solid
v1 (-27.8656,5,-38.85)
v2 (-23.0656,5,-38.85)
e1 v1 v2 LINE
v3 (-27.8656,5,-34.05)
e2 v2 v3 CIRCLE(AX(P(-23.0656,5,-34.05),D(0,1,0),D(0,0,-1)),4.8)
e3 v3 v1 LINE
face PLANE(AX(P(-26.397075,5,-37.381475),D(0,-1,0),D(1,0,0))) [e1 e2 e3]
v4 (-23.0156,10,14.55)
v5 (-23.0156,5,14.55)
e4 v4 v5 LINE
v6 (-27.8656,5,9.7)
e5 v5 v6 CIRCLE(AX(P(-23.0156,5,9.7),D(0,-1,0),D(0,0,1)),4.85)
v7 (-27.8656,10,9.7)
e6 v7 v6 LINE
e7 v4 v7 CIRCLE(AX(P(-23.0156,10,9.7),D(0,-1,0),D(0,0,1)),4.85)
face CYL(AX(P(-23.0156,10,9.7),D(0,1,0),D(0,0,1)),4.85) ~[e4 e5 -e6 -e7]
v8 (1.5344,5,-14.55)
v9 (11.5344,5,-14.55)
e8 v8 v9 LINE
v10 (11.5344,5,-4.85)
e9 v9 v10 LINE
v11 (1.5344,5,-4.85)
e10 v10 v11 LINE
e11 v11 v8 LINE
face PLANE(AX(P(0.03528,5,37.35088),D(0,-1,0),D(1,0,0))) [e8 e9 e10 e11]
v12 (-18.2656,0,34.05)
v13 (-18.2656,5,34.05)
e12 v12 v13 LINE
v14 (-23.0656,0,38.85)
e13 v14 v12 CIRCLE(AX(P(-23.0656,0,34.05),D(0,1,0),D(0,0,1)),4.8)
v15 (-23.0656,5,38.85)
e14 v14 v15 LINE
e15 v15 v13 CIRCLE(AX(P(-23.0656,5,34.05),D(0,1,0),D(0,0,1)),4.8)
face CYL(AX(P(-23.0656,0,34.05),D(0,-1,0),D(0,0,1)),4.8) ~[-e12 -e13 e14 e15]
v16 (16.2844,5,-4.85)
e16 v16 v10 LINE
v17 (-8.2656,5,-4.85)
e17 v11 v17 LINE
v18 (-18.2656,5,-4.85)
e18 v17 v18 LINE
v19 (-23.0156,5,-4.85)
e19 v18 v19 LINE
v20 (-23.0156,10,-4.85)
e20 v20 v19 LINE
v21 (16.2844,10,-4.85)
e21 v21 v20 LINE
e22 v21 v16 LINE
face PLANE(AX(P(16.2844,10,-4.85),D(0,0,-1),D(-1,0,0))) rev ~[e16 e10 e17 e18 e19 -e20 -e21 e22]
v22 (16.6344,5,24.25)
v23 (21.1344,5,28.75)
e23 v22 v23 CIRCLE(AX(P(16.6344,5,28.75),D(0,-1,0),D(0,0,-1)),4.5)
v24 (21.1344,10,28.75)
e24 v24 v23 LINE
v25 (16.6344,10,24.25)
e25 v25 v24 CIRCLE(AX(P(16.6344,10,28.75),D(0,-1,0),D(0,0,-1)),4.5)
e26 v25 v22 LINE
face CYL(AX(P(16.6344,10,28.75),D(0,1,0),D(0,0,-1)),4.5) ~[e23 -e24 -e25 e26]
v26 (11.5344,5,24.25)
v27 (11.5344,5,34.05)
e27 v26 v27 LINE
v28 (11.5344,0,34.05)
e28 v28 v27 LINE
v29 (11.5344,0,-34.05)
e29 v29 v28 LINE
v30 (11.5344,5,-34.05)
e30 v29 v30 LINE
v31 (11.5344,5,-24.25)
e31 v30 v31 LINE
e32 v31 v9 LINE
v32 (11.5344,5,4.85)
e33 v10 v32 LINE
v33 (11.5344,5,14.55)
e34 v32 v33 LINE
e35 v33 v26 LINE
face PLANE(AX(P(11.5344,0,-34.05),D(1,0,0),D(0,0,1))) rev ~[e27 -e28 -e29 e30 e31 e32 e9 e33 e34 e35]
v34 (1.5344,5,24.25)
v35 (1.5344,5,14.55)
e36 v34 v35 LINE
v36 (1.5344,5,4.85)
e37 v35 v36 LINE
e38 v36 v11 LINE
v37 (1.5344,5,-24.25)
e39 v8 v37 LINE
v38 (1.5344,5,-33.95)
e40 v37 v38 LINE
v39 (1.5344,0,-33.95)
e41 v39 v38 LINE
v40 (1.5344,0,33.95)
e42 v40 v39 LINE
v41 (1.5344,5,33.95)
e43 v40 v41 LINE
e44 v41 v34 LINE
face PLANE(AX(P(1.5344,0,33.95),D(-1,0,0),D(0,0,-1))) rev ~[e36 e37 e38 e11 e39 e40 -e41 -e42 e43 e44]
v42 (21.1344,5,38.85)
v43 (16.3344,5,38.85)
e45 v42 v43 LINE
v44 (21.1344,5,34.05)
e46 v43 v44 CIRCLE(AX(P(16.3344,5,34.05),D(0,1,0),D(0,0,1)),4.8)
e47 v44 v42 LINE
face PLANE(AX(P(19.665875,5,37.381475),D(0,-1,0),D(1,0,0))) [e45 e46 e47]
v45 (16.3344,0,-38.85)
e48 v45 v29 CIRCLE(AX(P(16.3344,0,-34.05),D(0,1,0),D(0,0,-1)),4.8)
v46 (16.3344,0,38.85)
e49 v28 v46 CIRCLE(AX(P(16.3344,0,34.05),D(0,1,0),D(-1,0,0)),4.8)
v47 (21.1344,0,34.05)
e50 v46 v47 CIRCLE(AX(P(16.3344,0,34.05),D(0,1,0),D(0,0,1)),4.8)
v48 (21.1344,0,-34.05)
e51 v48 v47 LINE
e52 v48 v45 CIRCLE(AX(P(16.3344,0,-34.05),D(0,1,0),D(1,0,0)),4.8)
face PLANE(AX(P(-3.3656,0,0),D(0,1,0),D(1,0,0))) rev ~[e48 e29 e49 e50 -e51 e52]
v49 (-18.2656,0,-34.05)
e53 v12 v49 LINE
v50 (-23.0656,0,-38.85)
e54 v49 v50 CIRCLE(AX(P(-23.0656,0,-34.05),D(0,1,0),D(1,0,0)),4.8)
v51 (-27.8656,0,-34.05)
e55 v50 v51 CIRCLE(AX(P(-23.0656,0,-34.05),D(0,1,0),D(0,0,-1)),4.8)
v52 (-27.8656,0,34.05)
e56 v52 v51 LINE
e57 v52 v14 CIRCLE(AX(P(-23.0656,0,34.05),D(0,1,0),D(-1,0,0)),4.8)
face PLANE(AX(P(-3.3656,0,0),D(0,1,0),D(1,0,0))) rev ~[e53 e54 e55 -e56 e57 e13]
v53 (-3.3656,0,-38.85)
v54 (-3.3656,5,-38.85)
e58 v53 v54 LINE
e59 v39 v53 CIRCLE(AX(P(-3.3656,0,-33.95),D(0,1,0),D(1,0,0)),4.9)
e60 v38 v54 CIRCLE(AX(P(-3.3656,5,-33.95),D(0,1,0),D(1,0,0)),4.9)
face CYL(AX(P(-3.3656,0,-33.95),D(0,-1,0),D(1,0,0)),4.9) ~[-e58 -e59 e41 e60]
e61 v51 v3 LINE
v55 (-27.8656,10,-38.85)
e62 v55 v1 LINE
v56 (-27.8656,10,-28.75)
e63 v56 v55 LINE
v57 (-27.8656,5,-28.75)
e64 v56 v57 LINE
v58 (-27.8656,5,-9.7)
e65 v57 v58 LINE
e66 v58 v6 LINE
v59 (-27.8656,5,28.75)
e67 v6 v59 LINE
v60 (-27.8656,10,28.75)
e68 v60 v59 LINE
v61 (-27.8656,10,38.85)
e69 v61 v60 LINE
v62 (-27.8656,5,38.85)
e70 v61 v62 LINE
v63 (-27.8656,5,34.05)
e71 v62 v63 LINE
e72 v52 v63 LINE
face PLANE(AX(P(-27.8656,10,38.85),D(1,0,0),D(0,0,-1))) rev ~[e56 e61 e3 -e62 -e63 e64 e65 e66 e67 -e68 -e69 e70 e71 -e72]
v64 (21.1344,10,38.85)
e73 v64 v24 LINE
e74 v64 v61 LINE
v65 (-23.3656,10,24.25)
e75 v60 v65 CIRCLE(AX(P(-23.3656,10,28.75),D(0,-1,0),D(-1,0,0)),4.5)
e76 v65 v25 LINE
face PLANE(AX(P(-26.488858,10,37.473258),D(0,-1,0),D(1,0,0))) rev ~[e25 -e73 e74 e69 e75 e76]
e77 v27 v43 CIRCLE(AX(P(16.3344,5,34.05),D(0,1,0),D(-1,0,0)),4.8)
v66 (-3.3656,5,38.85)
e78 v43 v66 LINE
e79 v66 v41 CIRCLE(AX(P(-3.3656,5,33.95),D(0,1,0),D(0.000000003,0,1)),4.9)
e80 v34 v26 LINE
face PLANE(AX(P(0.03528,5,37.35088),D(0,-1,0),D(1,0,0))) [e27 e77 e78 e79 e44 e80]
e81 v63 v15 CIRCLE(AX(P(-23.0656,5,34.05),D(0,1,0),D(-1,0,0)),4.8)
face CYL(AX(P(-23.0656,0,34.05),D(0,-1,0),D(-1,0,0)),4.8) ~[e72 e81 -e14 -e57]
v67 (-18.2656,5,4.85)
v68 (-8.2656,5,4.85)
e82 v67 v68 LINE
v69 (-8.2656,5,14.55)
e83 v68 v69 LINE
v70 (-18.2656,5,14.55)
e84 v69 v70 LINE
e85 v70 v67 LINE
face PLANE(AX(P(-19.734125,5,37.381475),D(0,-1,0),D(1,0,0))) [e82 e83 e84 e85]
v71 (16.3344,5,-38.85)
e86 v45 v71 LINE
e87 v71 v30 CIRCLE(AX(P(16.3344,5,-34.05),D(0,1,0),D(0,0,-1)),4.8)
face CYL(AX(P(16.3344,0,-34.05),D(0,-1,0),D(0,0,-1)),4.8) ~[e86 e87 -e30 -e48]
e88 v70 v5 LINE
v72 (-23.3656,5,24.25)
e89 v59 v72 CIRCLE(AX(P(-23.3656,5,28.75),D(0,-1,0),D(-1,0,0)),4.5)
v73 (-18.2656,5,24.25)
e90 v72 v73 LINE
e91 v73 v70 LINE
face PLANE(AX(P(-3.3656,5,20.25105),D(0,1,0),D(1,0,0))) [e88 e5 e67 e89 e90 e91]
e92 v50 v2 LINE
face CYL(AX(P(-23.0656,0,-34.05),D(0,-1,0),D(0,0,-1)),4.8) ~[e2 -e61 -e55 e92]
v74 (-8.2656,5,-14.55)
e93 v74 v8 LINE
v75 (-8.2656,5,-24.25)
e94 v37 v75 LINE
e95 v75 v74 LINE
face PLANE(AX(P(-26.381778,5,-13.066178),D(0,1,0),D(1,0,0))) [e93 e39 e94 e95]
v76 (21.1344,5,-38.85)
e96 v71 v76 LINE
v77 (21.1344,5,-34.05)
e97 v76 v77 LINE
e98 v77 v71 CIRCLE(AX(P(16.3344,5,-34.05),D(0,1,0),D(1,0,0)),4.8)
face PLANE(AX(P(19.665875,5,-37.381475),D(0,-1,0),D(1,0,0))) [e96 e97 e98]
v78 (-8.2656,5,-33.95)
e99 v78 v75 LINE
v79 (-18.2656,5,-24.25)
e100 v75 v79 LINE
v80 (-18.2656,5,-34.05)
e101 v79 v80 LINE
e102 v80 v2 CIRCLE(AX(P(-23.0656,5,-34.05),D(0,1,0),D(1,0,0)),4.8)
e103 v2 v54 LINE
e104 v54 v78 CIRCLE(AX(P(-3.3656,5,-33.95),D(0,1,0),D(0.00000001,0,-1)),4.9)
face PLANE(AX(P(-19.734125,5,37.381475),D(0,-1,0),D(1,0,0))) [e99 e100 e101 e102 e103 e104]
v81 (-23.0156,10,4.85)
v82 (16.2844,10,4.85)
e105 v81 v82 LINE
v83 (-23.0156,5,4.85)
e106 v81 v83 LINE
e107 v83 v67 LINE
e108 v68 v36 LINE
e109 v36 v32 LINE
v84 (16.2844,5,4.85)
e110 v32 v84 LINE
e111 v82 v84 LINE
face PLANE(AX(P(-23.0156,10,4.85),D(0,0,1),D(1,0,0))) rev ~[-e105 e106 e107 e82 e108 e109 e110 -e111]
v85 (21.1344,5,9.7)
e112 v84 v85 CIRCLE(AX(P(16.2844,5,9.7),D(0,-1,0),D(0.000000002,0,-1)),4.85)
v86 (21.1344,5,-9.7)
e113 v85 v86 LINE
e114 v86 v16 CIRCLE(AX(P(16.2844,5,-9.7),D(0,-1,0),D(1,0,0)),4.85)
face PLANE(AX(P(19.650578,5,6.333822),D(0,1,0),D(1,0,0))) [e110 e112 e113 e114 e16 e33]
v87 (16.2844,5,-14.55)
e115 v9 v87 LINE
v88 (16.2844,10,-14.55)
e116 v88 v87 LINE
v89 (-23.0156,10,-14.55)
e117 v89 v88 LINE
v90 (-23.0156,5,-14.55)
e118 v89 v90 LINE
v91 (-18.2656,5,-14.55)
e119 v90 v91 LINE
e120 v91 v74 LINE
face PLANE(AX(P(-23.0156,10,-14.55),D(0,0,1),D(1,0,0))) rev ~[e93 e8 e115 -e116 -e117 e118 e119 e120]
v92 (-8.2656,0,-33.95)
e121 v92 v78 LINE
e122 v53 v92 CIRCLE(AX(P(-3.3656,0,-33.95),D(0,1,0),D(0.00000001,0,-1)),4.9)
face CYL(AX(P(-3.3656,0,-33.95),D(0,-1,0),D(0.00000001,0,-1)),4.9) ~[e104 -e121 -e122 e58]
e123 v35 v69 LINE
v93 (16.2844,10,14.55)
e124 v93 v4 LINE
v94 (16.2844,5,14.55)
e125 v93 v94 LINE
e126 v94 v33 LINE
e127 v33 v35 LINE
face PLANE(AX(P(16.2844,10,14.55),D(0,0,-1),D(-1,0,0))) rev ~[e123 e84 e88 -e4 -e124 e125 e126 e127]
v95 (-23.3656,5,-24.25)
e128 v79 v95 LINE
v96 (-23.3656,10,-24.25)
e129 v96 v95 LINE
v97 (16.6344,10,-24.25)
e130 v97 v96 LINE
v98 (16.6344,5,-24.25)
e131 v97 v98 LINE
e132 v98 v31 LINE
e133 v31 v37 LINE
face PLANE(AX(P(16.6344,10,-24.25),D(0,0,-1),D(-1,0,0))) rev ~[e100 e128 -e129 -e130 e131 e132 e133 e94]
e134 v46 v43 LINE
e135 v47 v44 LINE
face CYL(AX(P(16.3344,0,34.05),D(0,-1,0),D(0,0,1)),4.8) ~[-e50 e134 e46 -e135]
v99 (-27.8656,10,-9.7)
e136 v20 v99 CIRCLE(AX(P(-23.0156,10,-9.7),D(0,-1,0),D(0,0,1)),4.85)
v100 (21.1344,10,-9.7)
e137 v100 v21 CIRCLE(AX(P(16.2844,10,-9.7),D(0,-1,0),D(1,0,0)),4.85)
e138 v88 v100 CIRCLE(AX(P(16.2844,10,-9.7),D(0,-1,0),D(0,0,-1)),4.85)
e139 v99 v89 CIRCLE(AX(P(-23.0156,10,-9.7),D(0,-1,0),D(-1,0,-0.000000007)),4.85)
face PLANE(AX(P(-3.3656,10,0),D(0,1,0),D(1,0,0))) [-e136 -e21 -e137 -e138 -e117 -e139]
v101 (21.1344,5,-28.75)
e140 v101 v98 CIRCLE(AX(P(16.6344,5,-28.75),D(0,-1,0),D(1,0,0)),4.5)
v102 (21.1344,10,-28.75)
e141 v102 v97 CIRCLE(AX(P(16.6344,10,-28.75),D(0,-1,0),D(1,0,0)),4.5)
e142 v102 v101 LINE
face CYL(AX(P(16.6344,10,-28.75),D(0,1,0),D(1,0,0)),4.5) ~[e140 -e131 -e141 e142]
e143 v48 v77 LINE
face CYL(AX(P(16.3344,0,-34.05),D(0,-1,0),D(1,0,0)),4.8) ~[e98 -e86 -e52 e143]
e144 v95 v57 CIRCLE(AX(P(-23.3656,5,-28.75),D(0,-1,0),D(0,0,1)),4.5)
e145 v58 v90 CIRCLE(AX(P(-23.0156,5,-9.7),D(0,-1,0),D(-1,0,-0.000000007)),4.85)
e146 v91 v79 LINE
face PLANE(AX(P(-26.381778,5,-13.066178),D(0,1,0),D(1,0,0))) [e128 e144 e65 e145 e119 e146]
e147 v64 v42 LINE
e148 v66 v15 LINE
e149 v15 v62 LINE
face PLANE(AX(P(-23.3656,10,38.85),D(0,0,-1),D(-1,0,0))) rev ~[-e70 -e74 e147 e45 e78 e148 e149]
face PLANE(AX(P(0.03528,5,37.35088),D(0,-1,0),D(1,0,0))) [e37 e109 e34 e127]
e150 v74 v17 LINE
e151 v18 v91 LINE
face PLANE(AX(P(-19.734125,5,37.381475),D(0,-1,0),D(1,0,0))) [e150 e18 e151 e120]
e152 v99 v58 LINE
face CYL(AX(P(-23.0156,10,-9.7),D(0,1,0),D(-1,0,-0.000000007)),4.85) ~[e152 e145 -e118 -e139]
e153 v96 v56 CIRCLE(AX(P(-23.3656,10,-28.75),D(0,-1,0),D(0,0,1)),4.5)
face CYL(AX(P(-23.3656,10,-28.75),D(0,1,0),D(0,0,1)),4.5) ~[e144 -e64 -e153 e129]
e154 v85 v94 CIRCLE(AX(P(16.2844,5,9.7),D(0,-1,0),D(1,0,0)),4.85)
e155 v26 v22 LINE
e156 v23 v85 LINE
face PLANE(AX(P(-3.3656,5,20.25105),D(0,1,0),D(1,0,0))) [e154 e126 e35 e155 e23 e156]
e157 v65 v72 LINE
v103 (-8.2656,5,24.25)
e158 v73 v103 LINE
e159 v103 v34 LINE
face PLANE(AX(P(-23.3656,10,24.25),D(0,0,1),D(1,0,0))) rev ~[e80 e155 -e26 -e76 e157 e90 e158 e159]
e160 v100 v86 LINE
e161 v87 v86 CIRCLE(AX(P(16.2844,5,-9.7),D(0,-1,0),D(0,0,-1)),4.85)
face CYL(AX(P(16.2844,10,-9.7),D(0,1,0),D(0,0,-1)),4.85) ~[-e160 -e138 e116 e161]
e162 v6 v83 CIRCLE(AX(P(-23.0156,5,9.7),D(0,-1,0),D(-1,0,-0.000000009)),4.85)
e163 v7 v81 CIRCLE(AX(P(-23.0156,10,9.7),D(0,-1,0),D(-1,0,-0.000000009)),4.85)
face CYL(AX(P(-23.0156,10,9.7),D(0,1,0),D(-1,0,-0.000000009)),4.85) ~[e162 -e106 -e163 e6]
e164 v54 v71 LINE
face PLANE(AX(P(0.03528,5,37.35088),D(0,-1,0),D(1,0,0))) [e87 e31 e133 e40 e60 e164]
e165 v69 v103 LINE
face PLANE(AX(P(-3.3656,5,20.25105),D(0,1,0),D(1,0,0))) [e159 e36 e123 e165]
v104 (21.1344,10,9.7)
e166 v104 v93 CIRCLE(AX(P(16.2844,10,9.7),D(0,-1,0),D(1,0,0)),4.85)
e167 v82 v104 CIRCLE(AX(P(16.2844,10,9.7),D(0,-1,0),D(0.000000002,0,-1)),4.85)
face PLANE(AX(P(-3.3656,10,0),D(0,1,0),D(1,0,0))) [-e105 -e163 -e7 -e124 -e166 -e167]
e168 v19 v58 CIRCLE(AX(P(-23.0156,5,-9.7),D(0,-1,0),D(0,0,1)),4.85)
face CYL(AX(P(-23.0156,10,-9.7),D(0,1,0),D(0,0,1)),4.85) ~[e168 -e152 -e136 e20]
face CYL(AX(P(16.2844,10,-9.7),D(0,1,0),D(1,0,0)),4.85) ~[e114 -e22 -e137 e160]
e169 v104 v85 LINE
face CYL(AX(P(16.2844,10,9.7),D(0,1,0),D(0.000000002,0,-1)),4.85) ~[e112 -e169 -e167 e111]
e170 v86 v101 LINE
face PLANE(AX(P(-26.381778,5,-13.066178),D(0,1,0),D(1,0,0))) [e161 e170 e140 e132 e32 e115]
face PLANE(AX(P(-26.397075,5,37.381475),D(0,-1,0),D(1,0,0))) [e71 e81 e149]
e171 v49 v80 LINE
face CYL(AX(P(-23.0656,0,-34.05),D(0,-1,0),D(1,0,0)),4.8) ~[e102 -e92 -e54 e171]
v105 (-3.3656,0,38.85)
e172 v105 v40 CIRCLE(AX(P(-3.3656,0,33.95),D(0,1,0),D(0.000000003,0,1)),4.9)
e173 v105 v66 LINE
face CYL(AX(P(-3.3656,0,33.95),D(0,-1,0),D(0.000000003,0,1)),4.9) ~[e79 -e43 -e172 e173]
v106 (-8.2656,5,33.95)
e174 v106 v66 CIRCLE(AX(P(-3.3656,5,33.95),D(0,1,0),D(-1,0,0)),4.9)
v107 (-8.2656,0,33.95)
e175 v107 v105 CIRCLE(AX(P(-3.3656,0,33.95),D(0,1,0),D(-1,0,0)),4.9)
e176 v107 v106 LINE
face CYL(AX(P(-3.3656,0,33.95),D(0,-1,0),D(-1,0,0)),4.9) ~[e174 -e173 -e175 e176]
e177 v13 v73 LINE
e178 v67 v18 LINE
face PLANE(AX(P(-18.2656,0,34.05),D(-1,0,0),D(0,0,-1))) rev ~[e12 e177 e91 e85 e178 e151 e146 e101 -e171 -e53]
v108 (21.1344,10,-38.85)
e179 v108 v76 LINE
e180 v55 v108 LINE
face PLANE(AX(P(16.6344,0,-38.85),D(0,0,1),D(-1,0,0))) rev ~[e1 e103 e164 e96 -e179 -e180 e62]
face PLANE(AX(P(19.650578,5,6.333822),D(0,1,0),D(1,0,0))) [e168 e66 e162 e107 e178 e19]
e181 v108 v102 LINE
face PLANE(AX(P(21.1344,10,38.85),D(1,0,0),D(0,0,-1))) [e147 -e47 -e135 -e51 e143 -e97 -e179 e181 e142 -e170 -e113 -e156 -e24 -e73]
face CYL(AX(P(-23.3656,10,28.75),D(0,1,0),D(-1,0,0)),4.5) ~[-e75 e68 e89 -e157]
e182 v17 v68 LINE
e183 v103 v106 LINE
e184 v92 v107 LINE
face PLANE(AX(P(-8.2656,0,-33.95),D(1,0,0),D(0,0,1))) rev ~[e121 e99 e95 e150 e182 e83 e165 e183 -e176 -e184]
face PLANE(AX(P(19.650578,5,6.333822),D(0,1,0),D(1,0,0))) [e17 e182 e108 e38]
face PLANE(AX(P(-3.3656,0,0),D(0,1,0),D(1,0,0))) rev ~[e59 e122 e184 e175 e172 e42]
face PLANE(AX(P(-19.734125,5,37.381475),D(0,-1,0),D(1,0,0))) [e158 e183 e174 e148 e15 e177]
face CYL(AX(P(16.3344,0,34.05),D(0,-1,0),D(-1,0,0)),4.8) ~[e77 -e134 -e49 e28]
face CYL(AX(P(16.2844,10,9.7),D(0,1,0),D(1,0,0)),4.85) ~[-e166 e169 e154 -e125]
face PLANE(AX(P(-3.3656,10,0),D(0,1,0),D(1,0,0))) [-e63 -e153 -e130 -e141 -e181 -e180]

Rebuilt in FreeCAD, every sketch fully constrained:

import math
import FreeCAD as App
import Part
import Sketcher

V = App.Vector
Q = App.Units.Quantity

doc = App.newDocument("Part")
body = doc.addObject("PartDesign::Body", "Body")

# Sketch on XZ plane
sketch1 = body.newObject("Sketcher::SketchObject", "Sketch")
sketch1.AttachmentSupport = (doc.getObject("XZ_Plane"), [""])
sketch1.MapMode = "FlatFace"
sketch1.addGeometry(Part.LineSegment(V(-23.4, 38.9, 0), V(16.6, 38.9, 0)), False)
sketch1.addGeometry(Part.ArcOfCircle(Part.Circle(V(16.6, 34.3, 0), V(0, 0, 1), 4.5), math.radians(0), math.radians(90)), False)
sketch1.addGeometry(Part.LineSegment(V(21.1, 34.4, 0), V(21.1, -34.4, 0)), False)
sketch1.addGeometry(Part.ArcOfCircle(Part.Circle(V(16.6, -34.3, 0), V(0, 0, 1), 4.5), math.radians(-90), math.radians(0)), False)
sketch1.addGeometry(Part.LineSegment(V(16.6, -38.9, 0), V(-23.4, -38.9, 0)), False)
sketch1.addGeometry(Part.ArcOfCircle(Part.Circle(V(-23.4, -34.3, 0), V(0, 0, 1), 4.5), math.radians(-180), math.radians(-90)), False)
sketch1.addGeometry(Part.LineSegment(V(-27.9, -34.4, 0), V(-27.9, 34.4, 0)), False)
sketch1.addGeometry(Part.ArcOfCircle(Part.Circle(V(-23.4, 34.3, 0), V(0, 0, 1), 4.5), math.radians(90), math.radians(180)), False)
sketch1.addConstraint(Sketcher.Constraint("Tangent", 0, 2, 1, 2))
sketch1.addConstraint(Sketcher.Constraint("Tangent", 1, 1, 2, 1))
sketch1.addConstraint(Sketcher.Constraint("Tangent", 2, 2, 3, 2))
sketch1.addConstraint(Sketcher.Constraint("Tangent", 3, 1, 4, 1))
sketch1.addConstraint(Sketcher.Constraint("Tangent", 4, 2, 5, 2))
sketch1.addConstraint(Sketcher.Constraint("Tangent", 5, 1, 6, 1))
sketch1.addConstraint(Sketcher.Constraint("Tangent", 6, 2, 7, 2))
sketch1.addConstraint(Sketcher.Constraint("Tangent", 7, 1, 0, 1))
sketch1.addConstraint(Sketcher.Constraint("Horizontal", 0))
sketch1.addConstraint(Sketcher.Constraint("Vertical", 2))
sketch1.addConstraint(Sketcher.Constraint("Horizontal", 4))
sketch1.addConstraint(Sketcher.Constraint("Vertical", 6))
sketch1.addConstraint(Sketcher.Constraint("Equal", 1, 3))
sketch1.addConstraint(Sketcher.Constraint("Equal", 3, 5))
sketch1.addConstraint(Sketcher.Constraint("Equal", 5, 7))
sketch1.addConstraint(Sketcher.Constraint("Radius", 1, Q("4.5 mm")))
sketch1.addConstraint(Sketcher.Constraint("DistanceX", 0, 1, 0, 2, Q("40 mm")))
sketch1.addConstraint(Sketcher.Constraint("DistanceY", 2, 2, 2, 1, Q("68.7 mm")))
sketch1.addConstraint(Sketcher.Constraint("DistanceY", -1, 1, 1, 3, Q("34.35 mm")))
sketch1.addConstraint(Sketcher.Constraint("DistanceX", -1, 1, 1, 3, Q("16.6344 mm")))
pad1 = body.newObject("PartDesign::Pad", "Pad")
pad1.Profile = sketch1
pad1.Length = 10
pad1.Reversed = True

# Sketch on XZ plane
sketch2 = body.newObject("Sketcher::SketchObject", "Sketch001")
sketch2.AttachmentSupport = (doc.getObject("XZ_Plane"), [""])
sketch2.MapMode = "FlatFace"
sketch2.AttachmentOffset = App.Placement(V(0, 0, -10), App.Rotation())
sketch2.addGeometry(Part.ArcOfCircle(Part.Circle(V(-23.4, 28.8, 0), V(0, 0, 1), 4.5), math.radians(-180), math.radians(-90)), False)
sketch2.addGeometry(Part.LineSegment(V(-23.4, 24.2, 0), V(16.6, 24.2, 0)), False)
sketch2.addGeometry(Part.ArcOfCircle(Part.Circle(V(16.6, 28.8, 0), V(0, 0, 1), 4.5), math.radians(-90), math.radians(0)), False)
sketch2.addGeometry(Part.LineSegment(V(21.1, 28.8, 0), V(21.1, 9.7, 0)), False)
sketch2.addGeometry(Part.ArcOfCircle(Part.Circle(V(16.3, 9.7, 0), V(0, 0, 1), 4.8), math.radians(0), math.radians(90)), False)
sketch2.addGeometry(Part.LineSegment(V(16.3, 14.6, 0), V(-23, 14.6, 0)), False)
sketch2.addGeometry(Part.ArcOfCircle(Part.Circle(V(-23, 9.7, 0), V(0, 0, 1), 4.9), math.radians(90), math.radians(180)), False)
sketch2.addGeometry(Part.LineSegment(V(-27.9, 9.7, 0), V(-27.9, 28.8, 0)), False)
sketch2.addGeometry(Part.LineSegment(V(21.1, 9.7, 0), V(21.1, -9.7, 0)), False)
sketch2.addGeometry(Part.ArcOfCircle(Part.Circle(V(16.3, -9.7, 0), V(0, 0, 1), 4.8), math.radians(0), math.radians(90)), False)
sketch2.addGeometry(Part.LineSegment(V(16.3, -4.8, 0), V(-23, -4.8, 0)), False)
sketch2.addGeometry(Part.ArcOfCircle(Part.Circle(V(-23, -9.7, 0), V(0, 0, 1), 4.8), math.radians(90), math.radians(180)), False)
sketch2.addGeometry(Part.LineSegment(V(-27.9, -9.7, 0), V(-27.9, 9.7, 0)), False)
sketch2.addGeometry(Part.ArcOfCircle(Part.Circle(V(-23, 9.7, 0), V(0, 0, 1), 4.9), math.radians(-180), math.radians(-90)), False)
sketch2.addGeometry(Part.LineSegment(V(-23, 4.8, 0), V(16.3, 4.8, 0)), False)
sketch2.addGeometry(Part.ArcOfCircle(Part.Circle(V(16.3, 9.7, 0), V(0, 0, 1), 4.9), math.radians(-90), math.radians(0)), False)
sketch2.addGeometry(Part.ArcOfCircle(Part.Circle(V(-23, -9.7, 0), V(0, 0, 1), 4.8), math.radians(-180), math.radians(-90)), False)
sketch2.addGeometry(Part.LineSegment(V(-23, -14.6, 0), V(16.3, -14.6, 0)), False)
sketch2.addGeometry(Part.ArcOfCircle(Part.Circle(V(16.3, -9.7, 0), V(0, 0, 1), 4.8), math.radians(-90), math.radians(0)), False)
sketch2.addGeometry(Part.LineSegment(V(21.1, -9.7, 0), V(21.1, -28.8, 0)), False)
sketch2.addGeometry(Part.ArcOfCircle(Part.Circle(V(16.6, -28.8, 0), V(0, 0, 1), 4.5), math.radians(0), math.radians(90)), False)
sketch2.addGeometry(Part.LineSegment(V(16.6, -24.2, 0), V(-23.4, -24.2, 0)), False)
sketch2.addGeometry(Part.ArcOfCircle(Part.Circle(V(-23.4, -28.8, 0), V(0, 0, 1), 4.5), math.radians(90), math.radians(180)), False)
sketch2.addGeometry(Part.LineSegment(V(-27.9, -28.8, 0), V(-27.9, -9.7, 0)), False)
sketch2.addConstraint(Sketcher.Constraint("Tangent", 0, 2, 1, 1))
sketch2.addConstraint(Sketcher.Constraint("Tangent", 1, 2, 2, 1))
sketch2.addConstraint(Sketcher.Constraint("Tangent", 2, 2, 3, 1))
sketch2.addConstraint(Sketcher.Constraint("Tangent", 3, 2, 4, 1))
sketch2.addConstraint(Sketcher.Constraint("Tangent", 4, 2, 5, 1))
sketch2.addConstraint(Sketcher.Constraint("Tangent", 5, 2, 6, 1))
sketch2.addConstraint(Sketcher.Constraint("Tangent", 6, 2, 7, 1))
sketch2.addConstraint(Sketcher.Constraint("Tangent", 7, 2, 0, 1))
sketch2.addConstraint(Sketcher.Constraint("Tangent", 8, 2, 9, 1))
sketch2.addConstraint(Sketcher.Constraint("Tangent", 9, 2, 10, 1))
sketch2.addConstraint(Sketcher.Constraint("Tangent", 10, 2, 11, 1))
sketch2.addConstraint(Sketcher.Constraint("Tangent", 11, 2, 12, 1))
sketch2.addConstraint(Sketcher.Constraint("Tangent", 12, 2, 13, 1))
sketch2.addConstraint(Sketcher.Constraint("Tangent", 13, 2, 14, 1))
sketch2.addConstraint(Sketcher.Constraint("Tangent", 14, 2, 15, 1))
sketch2.addConstraint(Sketcher.Constraint("Tangent", 15, 2, 8, 1))
sketch2.addConstraint(Sketcher.Constraint("Tangent", 16, 2, 17, 1))
sketch2.addConstraint(Sketcher.Constraint("Tangent", 17, 2, 18, 1))
sketch2.addConstraint(Sketcher.Constraint("Tangent", 18, 2, 19, 1))
sketch2.addConstraint(Sketcher.Constraint("Tangent", 19, 2, 20, 1))
sketch2.addConstraint(Sketcher.Constraint("Tangent", 20, 2, 21, 1))
sketch2.addConstraint(Sketcher.Constraint("Tangent", 21, 2, 22, 1))
sketch2.addConstraint(Sketcher.Constraint("Tangent", 22, 2, 23, 1))
sketch2.addConstraint(Sketcher.Constraint("Tangent", 23, 2, 16, 1))
sketch2.addConstraint(Sketcher.Constraint("Horizontal", 1))
sketch2.addConstraint(Sketcher.Constraint("Vertical", 3))
sketch2.addConstraint(Sketcher.Constraint("Horizontal", 5))
sketch2.addConstraint(Sketcher.Constraint("Vertical", 7))
sketch2.addConstraint(Sketcher.Constraint("Vertical", 8))
sketch2.addConstraint(Sketcher.Constraint("Horizontal", 10))
sketch2.addConstraint(Sketcher.Constraint("Vertical", 12))
sketch2.addConstraint(Sketcher.Constraint("Horizontal", 14))
sketch2.addConstraint(Sketcher.Constraint("Horizontal", 17))
sketch2.addConstraint(Sketcher.Constraint("Vertical", 19))
sketch2.addConstraint(Sketcher.Constraint("Horizontal", 21))
sketch2.addConstraint(Sketcher.Constraint("Vertical", 23))
sketch2.addConstraint(Sketcher.Constraint("Coincident", 13, 3, 6, 3))
sketch2.addConstraint(Sketcher.Constraint("Coincident", 15, 3, 4, 3))
sketch2.addConstraint(Sketcher.Constraint("Coincident", 16, 3, 11, 3))
sketch2.addConstraint(Sketcher.Constraint("Coincident", 18, 3, 9, 3))
sketch2.addConstraint(Sketcher.Constraint("Equal", 0, 2))
sketch2.addConstraint(Sketcher.Constraint("Equal", 4, 6))
sketch2.addConstraint(Sketcher.Constraint("Equal", 6, 9))
sketch2.addConstraint(Sketcher.Constraint("Equal", 9, 11))
sketch2.addConstraint(Sketcher.Constraint("Equal", 11, 13))
sketch2.addConstraint(Sketcher.Constraint("Equal", 15, 16))
sketch2.addConstraint(Sketcher.Constraint("Equal", 2, 20))
sketch2.addConstraint(Sketcher.Constraint("Equal", 20, 22))
sketch2.addConstraint(Sketcher.Constraint("Equal", 7, 19))
sketch2.addConstraint(Sketcher.Constraint("Radius", 0, Q("4.5 mm")))
sketch2.addConstraint(Sketcher.Constraint("DistanceX", 1, 1, 1, 2, Q("40 mm")))
sketch2.addConstraint(Sketcher.Constraint("Radius", 4, Q("4.85 mm")))
sketch2.addConstraint(Sketcher.Constraint("DistanceY", 8, 2, 8, 1, Q("19.4 mm")))
sketch2.addConstraint(Sketcher.Constraint("DistanceY", 3, 2, 3, 1, Q("19.05 mm")))
sketch2.addConstraint(Sketcher.Constraint("DistanceY", -1, 1, 4, 3, Q("9.7 mm")))
sketch2.addConstraint(Sketcher.Constraint("DistanceX", 0, 3, -1, 1, Q("23.3656 mm")))
pocket1 = body.newObject("PartDesign::Pocket", "Pocket")
pocket1.Profile = sketch2
pocket1.Length = 5
pocket1.Reversed = True

# Sketch on XZ plane
sketch3 = body.newObject("Sketcher::SketchObject", "Sketch002")
sketch3.AttachmentSupport = (doc.getObject("XZ_Plane"), [""])
sketch3.MapMode = "FlatFace"
sketch3.addGeometry(Part.LineSegment(V(-23.4, 38.9, 0), V(-27.9, 38.9, 0)), False)
sketch3.addGeometry(Part.LineSegment(V(-27.9, 38.9, 0), V(-27.9, 34.2, 0)), False)
sketch3.addGeometry(Part.LineSegment(V(-27.9, 34.2, 0), V(-23.4, 35.6, 0)), False)
sketch3.addGeometry(Part.LineSegment(V(-23.4, 35.6, 0), V(-23.4, 38.9, 0)), False)
sketch3.addGeometry(Part.LineSegment(V(16.6, 38.9, 0), V(17.4, 36.8, 0)), False)
sketch3.addGeometry(Part.LineSegment(V(17.4, 36.8, 0), V(21.1, 34.4, 0)), False)
sketch3.addGeometry(Part.LineSegment(V(21.1, 34.4, 0), V(21.1, 38.9, 0)), False)
sketch3.addGeometry(Part.LineSegment(V(21.1, 38.9, 0), V(16.6, 38.9, 0)), False)
sketch3.addGeometry(Part.LineSegment(V(21.1, -34.4, 0), V(16.6, -34.7, 0)), False)
sketch3.addGeometry(Part.LineSegment(V(16.6, -34.7, 0), V(16.6, -38.9, 0)), False)
sketch3.addGeometry(Part.LineSegment(V(16.6, -38.9, 0), V(21.1, -38.9, 0)), False)
sketch3.addGeometry(Part.LineSegment(V(21.1, -38.9, 0), V(21.1, -34.4, 0)), False)
sketch3.addGeometry(Part.LineSegment(V(-23.4, -38.9, 0), V(-23.2, -35.6, 0)), False)
sketch3.addGeometry(Part.LineSegment(V(-23.2, -35.6, 0), V(-27.9, -34.4, 0)), False)
sketch3.addGeometry(Part.LineSegment(V(-27.9, -34.4, 0), V(-27.9, -38.9, 0)), False)
sketch3.addGeometry(Part.LineSegment(V(-27.9, -38.9, 0), V(-23.4, -38.9, 0)), False)
sketch3.addConstraint(Sketcher.Constraint("Coincident", 0, 2, 1, 1))
sketch3.addConstraint(Sketcher.Constraint("Coincident", 1, 2, 2, 1))
sketch3.addConstraint(Sketcher.Constraint("Coincident", 2, 2, 3, 1))
sketch3.addConstraint(Sketcher.Constraint("Coincident", 3, 2, 0, 1))
sketch3.addConstraint(Sketcher.Constraint("Coincident", 4, 2, 5, 1))
sketch3.addConstraint(Sketcher.Constraint("Coincident", 5, 2, 6, 1))
sketch3.addConstraint(Sketcher.Constraint("Coincident", 6, 2, 7, 1))
sketch3.addConstraint(Sketcher.Constraint("Coincident", 7, 2, 4, 1))
sketch3.addConstraint(Sketcher.Constraint("Coincident", 8, 2, 9, 1))
sketch3.addConstraint(Sketcher.Constraint("Coincident", 9, 2, 10, 1))
sketch3.addConstraint(Sketcher.Constraint("Coincident", 10, 2, 11, 1))
sketch3.addConstraint(Sketcher.Constraint("Coincident", 11, 2, 8, 1))
sketch3.addConstraint(Sketcher.Constraint("Coincident", 12, 2, 13, 1))
sketch3.addConstraint(Sketcher.Constraint("Coincident", 13, 2, 14, 1))
sketch3.addConstraint(Sketcher.Constraint("Coincident", 14, 2, 15, 1))
sketch3.addConstraint(Sketcher.Constraint("Coincident", 15, 2, 12, 1))
sketch3.addConstraint(Sketcher.Constraint("Horizontal", 0))
sketch3.addConstraint(Sketcher.Constraint("Vertical", 1))
sketch3.addConstraint(Sketcher.Constraint("Vertical", 3))
sketch3.addConstraint(Sketcher.Constraint("Vertical", 6))
sketch3.addConstraint(Sketcher.Constraint("Horizontal", 7))
sketch3.addConstraint(Sketcher.Constraint("Vertical", 9))
sketch3.addConstraint(Sketcher.Constraint("Horizontal", 10))
sketch3.addConstraint(Sketcher.Constraint("Vertical", 11))
sketch3.addConstraint(Sketcher.Constraint("Vertical", 14))
sketch3.addConstraint(Sketcher.Constraint("Horizontal", 15))
sketch3.addConstraint(Sketcher.Constraint("Symmetric", 7, 2, 9, 2, -1))
sketch3.addConstraint(Sketcher.Constraint("Symmetric", 5, 2, 11, 2, -1))
sketch3.addConstraint(Sketcher.Constraint("Symmetric", 0, 2, 14, 2, -1))
sketch3.addConstraint(Sketcher.Constraint("Horizontal", 3, 2, 6, 2))
sketch3.addConstraint(Sketcher.Constraint("Horizontal", 11, 2, 13, 2))
sketch3.addConstraint(Sketcher.Constraint("Vertical", 3, 2, 15, 2))
sketch3.addConstraint(Sketcher.Constraint("Equal", 0, 7))
sketch3.addConstraint(Sketcher.Constraint("Equal", 15, 6))
sketch3.addConstraint(Sketcher.Constraint("DistanceX", 0, 2, 0, 1, Q("4.5 mm")))
sketch3.addConstraint(Sketcher.Constraint("DistanceX", 1, 2, 5, 2, Q("49 mm")))
sketch3.addConstraint(Sketcher.Constraint("DistanceY", 9, 2, 5, 2, Q("73.2 mm")))
sketch3.addConstraint(Sketcher.Constraint("DistanceY", 1, 2, 2, 2, Q("1.439 mm")))
sketch3.addConstraint(Sketcher.Constraint("DistanceY", 1, 2, 1, 1, Q("4.673389 mm")))
sketch3.addConstraint(Sketcher.Constraint("DistanceY", 9, 2, 9, 1, Q("4.104989 mm")))
sketch3.addConstraint(Sketcher.Constraint("DistanceX", 0, 2, -1, 1, Q("27.8656 mm")))
sketch3.addConstraint(Sketcher.Constraint("Distance", 4, Q("2.154379 mm")))
sketch3.addConstraint(Sketcher.Constraint("Distance", 13, Q("4.868361 mm")))
sketch3.addConstraint(Sketcher.Constraint("DistanceX", -1, 1, 4, 2, Q("17.428759 mm")))
sketch3.addConstraint(Sketcher.Constraint("Distance", 12, Q("3.270893 mm")))
pad2 = body.newObject("PartDesign::Pad", "Pad001")
pad2.Profile = sketch3
pad2.Type = "TwoLengths"
pad2.Length = 5
pad2.Length2 = 10

# Sketch on YZ plane
sketch4 = body.newObject("Sketcher::SketchObject", "Sketch003")
sketch4.AttachmentSupport = (doc.getObject("YZ_Plane"), [""])
sketch4.MapMode = "FlatFace"
sketch4.AttachmentOffset = App.Placement(V(0, 0, 21.1344), App.Rotation())
sketch4.addGeometry(Part.LineSegment(V(-11, 39, 0), V(-11, -42, 0)), False)
sketch4.addGeometry(Part.LineSegment(V(-11, -42, 0), V(0, -42, 0)), False)
sketch4.addGeometry(Part.LineSegment(V(0, -42, 0), V(0, 39, 0)), False)
sketch4.addGeometry(Part.LineSegment(V(0, 39, 0), V(-11, 39, 0)), False)
sketch4.addConstraint(Sketcher.Constraint("Coincident", 0, 2, 1, 1))
sketch4.addConstraint(Sketcher.Constraint("Coincident", 1, 2, 2, 1))
sketch4.addConstraint(Sketcher.Constraint("Coincident", 2, 2, 3, 1))
sketch4.addConstraint(Sketcher.Constraint("Coincident", 3, 2, 0, 1))
sketch4.addConstraint(Sketcher.Constraint("Vertical", 0))
sketch4.addConstraint(Sketcher.Constraint("Horizontal", 1))
sketch4.addConstraint(Sketcher.Constraint("Vertical", 2))
sketch4.addConstraint(Sketcher.Constraint("Horizontal", 3))
sketch4.addConstraint(Sketcher.Constraint("PointOnObject", 1, 2, -2))
sketch4.addConstraint(Sketcher.Constraint("DistanceY", -1, 1, 2, 2, Q("38.85 mm")))
sketch4.addConstraint(Sketcher.Constraint("DistanceY", 0, 2, 0, 1, Q("80.434838 mm")))
sketch4.addConstraint(Sketcher.Constraint("DistanceX", 1, 1, 1, 2, Q("11.467862 mm")))
pocket2 = body.newObject("PartDesign::Pocket", "Pocket001")
pocket2.Profile = sketch4
pocket2.Length = 60

# Sketch on XZ plane
sketch5 = body.newObject("Sketcher::SketchObject", "Sketch004")
sketch5.AttachmentSupport = (doc.getObject("XZ_Plane"), [""])
sketch5.MapMode = "FlatFace"
sketch5.addGeometry(Part.ArcOfCircle(Part.Circle(V(-23.1, 34.1, 0), V(0, 0, 1), 4.8), math.radians(90), math.radians(180)), False)
sketch5.addGeometry(Part.LineSegment(V(-23.1, 38.9, 0), V(-27.9, 38.9, 0)), False)
sketch5.addGeometry(Part.LineSegment(V(-27.9, 38.9, 0), V(-27.9, 34, 0)), False)
sketch5.addGeometry(Part.ArcOfCircle(Part.Circle(V(-23.1, 34.1, 0), V(0, 0, 1), 4.8), math.radians(0), math.radians(90)), False)
sketch5.addGeometry(Part.LineSegment(V(-18.3, 34, 0), V(-18.3, -34, 0)), False)
sketch5.addGeometry(Part.ArcOfCircle(Part.Circle(V(-23.1, -34.1, 0), V(0, 0, 1), 4.8), math.radians(-90), math.radians(0)), False)
sketch5.addGeometry(Part.LineSegment(V(-23.1, -38.9, 0), V(-3.4, -38.9, 0)), False)
sketch5.addGeometry(Part.ArcOfCircle(Part.Circle(V(-3.4, -33.9, 0), V(0, 0, 1), 4.9), math.radians(-180), math.radians(-90)), False)
sketch5.addGeometry(Part.LineSegment(V(-8.3, -34, 0), V(-8.3, 34, 0)), False)
sketch5.addGeometry(Part.ArcOfCircle(Part.Circle(V(-3.4, 33.9, 0), V(0, 0, 1), 4.9), math.radians(90), math.radians(180)), False)
sketch5.addGeometry(Part.LineSegment(V(-3.4, 38.9, 0), V(-23.1, 38.9, 0)), False)
sketch5.addGeometry(Part.ArcOfCircle(Part.Circle(V(-3.4, 33.9, 0), V(0, 0, 1), 4.9), math.radians(0), math.radians(90)), False)
sketch5.addGeometry(Part.LineSegment(V(1.5, 34, 0), V(1.5, -34, 0)), False)
sketch5.addGeometry(Part.ArcOfCircle(Part.Circle(V(-3.4, -34, 0), V(0, 0, 1), 4.9), math.radians(-90), math.radians(0)), False)
sketch5.addGeometry(Part.LineSegment(V(-3.4, -38.9, 0), V(16.3, -38.9, 0)), False)
sketch5.addGeometry(Part.ArcOfCircle(Part.Circle(V(16.3, -34, 0), V(0, 0, 1), 4.8), math.radians(-180), math.radians(-90)), False)
sketch5.addGeometry(Part.LineSegment(V(11.5, -34.1, 0), V(11.5, 34, 0)), False)
sketch5.addGeometry(Part.ArcOfCircle(Part.Circle(V(16.3, 34.1, 0), V(0, 0, 1), 4.8), math.radians(90), math.radians(180)), False)
sketch5.addGeometry(Part.LineSegment(V(16.3, 38.9, 0), V(-3.4, 38.9, 0)), False)
sketch5.addGeometry(Part.LineSegment(V(21.1, 38.9, 0), V(16.3, 38.9, 0)), False)
sketch5.addGeometry(Part.ArcOfCircle(Part.Circle(V(16.3, 34.1, 0), V(0, 0, 1), 4.8), math.radians(0), math.radians(90)), False)
sketch5.addGeometry(Part.LineSegment(V(21.1, 34, 0), V(21.1, 38.9, 0)), False)
sketch5.addGeometry(Part.ArcOfCircle(Part.Circle(V(16.3, -34.1, 0), V(0, 0, 1), 4.8), math.radians(-90), math.radians(0)), False)
sketch5.addGeometry(Part.LineSegment(V(16.3, -38.9, 0), V(21.1, -38.9, 0)), False)
sketch5.addGeometry(Part.LineSegment(V(21.1, -38.9, 0), V(21.1, -34, 0)), False)
sketch5.addGeometry(Part.ArcOfCircle(Part.Circle(V(-23.1, -34, 0), V(0, 0, 1), 4.8), math.radians(180), math.radians(270)), False)
sketch5.addGeometry(Part.LineSegment(V(-27.9, -34, 0), V(-27.9, -38.9, 0)), False)
sketch5.addGeometry(Part.LineSegment(V(-27.9, -38.9, 0), V(-23.1, -38.9, 0)), False)
sketch5.addConstraint(Sketcher.Constraint("Tangent", 0, 1, 1, 1))
sketch5.addConstraint(Sketcher.Constraint("Coincident", 1, 2, 2, 1))
sketch5.addConstraint(Sketcher.Constraint("Tangent", 2, 2, 0, 2))
sketch5.addConstraint(Sketcher.Constraint("Tangent", 3, 1, 4, 1))
sketch5.addConstraint(Sketcher.Constraint("Tangent", 4, 2, 5, 2))
sketch5.addConstraint(Sketcher.Constraint("Tangent", 5, 1, 6, 1))
sketch5.addConstraint(Sketcher.Constraint("Tangent", 6, 2, 7, 2))
sketch5.addConstraint(Sketcher.Constraint("Tangent", 7, 1, 8, 1))
sketch5.addConstraint(Sketcher.Constraint("Tangent", 8, 2, 9, 2))
sketch5.addConstraint(Sketcher.Constraint("Tangent", 9, 1, 10, 1))
sketch5.addConstraint(Sketcher.Constraint("Tangent", 10, 2, 3, 2))
sketch5.addConstraint(Sketcher.Constraint("Tangent", 11, 1, 12, 1))
sketch5.addConstraint(Sketcher.Constraint("Tangent", 12, 2, 13, 2))
sketch5.addConstraint(Sketcher.Constraint("Tangent", 13, 1, 14, 1))
sketch5.addConstraint(Sketcher.Constraint("Tangent", 14, 2, 15, 2))
sketch5.addConstraint(Sketcher.Constraint("Tangent", 15, 1, 16, 1))
sketch5.addConstraint(Sketcher.Constraint("Tangent", 16, 2, 17, 2))
sketch5.addConstraint(Sketcher.Constraint("Tangent", 17, 1, 18, 1))
sketch5.addConstraint(Sketcher.Constraint("Tangent", 18, 2, 11, 2))
sketch5.addConstraint(Sketcher.Constraint("Tangent", 19, 2, 20, 2))
sketch5.addConstraint(Sketcher.Constraint("Tangent", 20, 1, 21, 1))
sketch5.addConstraint(Sketcher.Constraint("Coincident", 21, 2, 19, 1))
sketch5.addConstraint(Sketcher.Constraint("Tangent", 22, 1, 23, 1))
sketch5.addConstraint(Sketcher.Constraint("Coincident", 23, 2, 24, 1))
sketch5.addConstraint(Sketcher.Constraint("Tangent", 24, 2, 22, 2))
sketch5.addConstraint(Sketcher.Constraint("Tangent", 25, 1, 26, 1))
sketch5.addConstraint(Sketcher.Constraint("Coincident", 26, 2, 27, 1))
sketch5.addConstraint(Sketcher.Constraint("Tangent", 27, 2, 25, 2))
sketch5.addConstraint(Sketcher.Constraint("Horizontal", 1))
sketch5.addConstraint(Sketcher.Constraint("Vertical", 2))
sketch5.addConstraint(Sketcher.Constraint("Vertical", 4))
sketch5.addConstraint(Sketcher.Constraint("Horizontal", 6))
sketch5.addConstraint(Sketcher.Constraint("Vertical", 8))
sketch5.addConstraint(Sketcher.Constraint("Horizontal", 10))
sketch5.addConstraint(Sketcher.Constraint("Vertical", 12))
sketch5.addConstraint(Sketcher.Constraint("Horizontal", 14))
sketch5.addConstraint(Sketcher.Constraint("Vertical", 16))
sketch5.addConstraint(Sketcher.Constraint("Horizontal", 18))
sketch5.addConstraint(Sketcher.Constraint("Horizontal", 19))
sketch5.addConstraint(Sketcher.Constraint("Vertical", 21))
sketch5.addConstraint(Sketcher.Constraint("Horizontal", 23))
sketch5.addConstraint(Sketcher.Constraint("Vertical", 24))
sketch5.addConstraint(Sketcher.Constraint("Vertical", 26))
sketch5.addConstraint(Sketcher.Constraint("Horizontal", 27))
sketch5.addConstraint(Sketcher.Constraint("Coincident", 3, 3, 0, 3))
sketch5.addConstraint(Sketcher.Constraint("Coincident", 11, 3, 9, 3))
sketch5.addConstraint(Sketcher.Constraint("Coincident", 13, 3, 7, 3))
sketch5.addConstraint(Sketcher.Constraint("Coincident", 20, 3, 17, 3))
sketch5.addConstraint(Sketcher.Constraint("Coincident", 22, 3, 15, 3))
sketch5.addConstraint(Sketcher.Constraint("Coincident", 25, 3, 5, 3))
sketch5.addConstraint(Sketcher.Constraint("Equal", 0, 3))
sketch5.addConstraint(Sketcher.Constraint("Equal", 3, 5))
sketch5.addConstraint(Sketcher.Constraint("Equal", 7, 9))
sketch5.addConstraint(Sketcher.Constraint("Equal", 9, 11))
sketch5.addConstraint(Sketcher.Constraint("Equal", 5, 15))
sketch5.addConstraint(Sketcher.Constraint("Equal", 15, 17))
sketch5.addConstraint(Sketcher.Constraint("Equal", 17, 20))
sketch5.addConstraint(Sketcher.Constraint("Equal", 20, 22))
sketch5.addConstraint(Sketcher.Constraint("Equal", 22, 25))
sketch5.addConstraint(Sketcher.Constraint("Equal", 10, 14))
sketch5.addConstraint(Sketcher.Constraint("Radius", 0, Q("4.8 mm")))
sketch5.addConstraint(Sketcher.Constraint("Radius", 7, Q("4.9 mm")))
sketch5.addConstraint(Sketcher.Constraint("DistanceX", 6, 1, 6, 2, Q("19.7 mm")))
sketch5.addConstraint(Sketcher.Constraint("DistanceY", 4, 2, 4, 1, Q("68.1 mm")))
sketch5.addConstraint(Sketcher.Constraint("DistanceY", -1, 1, 0, 3, Q("34.05 mm")))
sketch5.addConstraint(Sketcher.Constraint("DistanceX", 0, 3, -1, 1, Q("23.0656 mm")))
pocket3 = body.newObject("PartDesign::Pocket", "Pocket002")
pocket3.Profile = sketch5
pocket3.Length = 5

doc.recompute()
